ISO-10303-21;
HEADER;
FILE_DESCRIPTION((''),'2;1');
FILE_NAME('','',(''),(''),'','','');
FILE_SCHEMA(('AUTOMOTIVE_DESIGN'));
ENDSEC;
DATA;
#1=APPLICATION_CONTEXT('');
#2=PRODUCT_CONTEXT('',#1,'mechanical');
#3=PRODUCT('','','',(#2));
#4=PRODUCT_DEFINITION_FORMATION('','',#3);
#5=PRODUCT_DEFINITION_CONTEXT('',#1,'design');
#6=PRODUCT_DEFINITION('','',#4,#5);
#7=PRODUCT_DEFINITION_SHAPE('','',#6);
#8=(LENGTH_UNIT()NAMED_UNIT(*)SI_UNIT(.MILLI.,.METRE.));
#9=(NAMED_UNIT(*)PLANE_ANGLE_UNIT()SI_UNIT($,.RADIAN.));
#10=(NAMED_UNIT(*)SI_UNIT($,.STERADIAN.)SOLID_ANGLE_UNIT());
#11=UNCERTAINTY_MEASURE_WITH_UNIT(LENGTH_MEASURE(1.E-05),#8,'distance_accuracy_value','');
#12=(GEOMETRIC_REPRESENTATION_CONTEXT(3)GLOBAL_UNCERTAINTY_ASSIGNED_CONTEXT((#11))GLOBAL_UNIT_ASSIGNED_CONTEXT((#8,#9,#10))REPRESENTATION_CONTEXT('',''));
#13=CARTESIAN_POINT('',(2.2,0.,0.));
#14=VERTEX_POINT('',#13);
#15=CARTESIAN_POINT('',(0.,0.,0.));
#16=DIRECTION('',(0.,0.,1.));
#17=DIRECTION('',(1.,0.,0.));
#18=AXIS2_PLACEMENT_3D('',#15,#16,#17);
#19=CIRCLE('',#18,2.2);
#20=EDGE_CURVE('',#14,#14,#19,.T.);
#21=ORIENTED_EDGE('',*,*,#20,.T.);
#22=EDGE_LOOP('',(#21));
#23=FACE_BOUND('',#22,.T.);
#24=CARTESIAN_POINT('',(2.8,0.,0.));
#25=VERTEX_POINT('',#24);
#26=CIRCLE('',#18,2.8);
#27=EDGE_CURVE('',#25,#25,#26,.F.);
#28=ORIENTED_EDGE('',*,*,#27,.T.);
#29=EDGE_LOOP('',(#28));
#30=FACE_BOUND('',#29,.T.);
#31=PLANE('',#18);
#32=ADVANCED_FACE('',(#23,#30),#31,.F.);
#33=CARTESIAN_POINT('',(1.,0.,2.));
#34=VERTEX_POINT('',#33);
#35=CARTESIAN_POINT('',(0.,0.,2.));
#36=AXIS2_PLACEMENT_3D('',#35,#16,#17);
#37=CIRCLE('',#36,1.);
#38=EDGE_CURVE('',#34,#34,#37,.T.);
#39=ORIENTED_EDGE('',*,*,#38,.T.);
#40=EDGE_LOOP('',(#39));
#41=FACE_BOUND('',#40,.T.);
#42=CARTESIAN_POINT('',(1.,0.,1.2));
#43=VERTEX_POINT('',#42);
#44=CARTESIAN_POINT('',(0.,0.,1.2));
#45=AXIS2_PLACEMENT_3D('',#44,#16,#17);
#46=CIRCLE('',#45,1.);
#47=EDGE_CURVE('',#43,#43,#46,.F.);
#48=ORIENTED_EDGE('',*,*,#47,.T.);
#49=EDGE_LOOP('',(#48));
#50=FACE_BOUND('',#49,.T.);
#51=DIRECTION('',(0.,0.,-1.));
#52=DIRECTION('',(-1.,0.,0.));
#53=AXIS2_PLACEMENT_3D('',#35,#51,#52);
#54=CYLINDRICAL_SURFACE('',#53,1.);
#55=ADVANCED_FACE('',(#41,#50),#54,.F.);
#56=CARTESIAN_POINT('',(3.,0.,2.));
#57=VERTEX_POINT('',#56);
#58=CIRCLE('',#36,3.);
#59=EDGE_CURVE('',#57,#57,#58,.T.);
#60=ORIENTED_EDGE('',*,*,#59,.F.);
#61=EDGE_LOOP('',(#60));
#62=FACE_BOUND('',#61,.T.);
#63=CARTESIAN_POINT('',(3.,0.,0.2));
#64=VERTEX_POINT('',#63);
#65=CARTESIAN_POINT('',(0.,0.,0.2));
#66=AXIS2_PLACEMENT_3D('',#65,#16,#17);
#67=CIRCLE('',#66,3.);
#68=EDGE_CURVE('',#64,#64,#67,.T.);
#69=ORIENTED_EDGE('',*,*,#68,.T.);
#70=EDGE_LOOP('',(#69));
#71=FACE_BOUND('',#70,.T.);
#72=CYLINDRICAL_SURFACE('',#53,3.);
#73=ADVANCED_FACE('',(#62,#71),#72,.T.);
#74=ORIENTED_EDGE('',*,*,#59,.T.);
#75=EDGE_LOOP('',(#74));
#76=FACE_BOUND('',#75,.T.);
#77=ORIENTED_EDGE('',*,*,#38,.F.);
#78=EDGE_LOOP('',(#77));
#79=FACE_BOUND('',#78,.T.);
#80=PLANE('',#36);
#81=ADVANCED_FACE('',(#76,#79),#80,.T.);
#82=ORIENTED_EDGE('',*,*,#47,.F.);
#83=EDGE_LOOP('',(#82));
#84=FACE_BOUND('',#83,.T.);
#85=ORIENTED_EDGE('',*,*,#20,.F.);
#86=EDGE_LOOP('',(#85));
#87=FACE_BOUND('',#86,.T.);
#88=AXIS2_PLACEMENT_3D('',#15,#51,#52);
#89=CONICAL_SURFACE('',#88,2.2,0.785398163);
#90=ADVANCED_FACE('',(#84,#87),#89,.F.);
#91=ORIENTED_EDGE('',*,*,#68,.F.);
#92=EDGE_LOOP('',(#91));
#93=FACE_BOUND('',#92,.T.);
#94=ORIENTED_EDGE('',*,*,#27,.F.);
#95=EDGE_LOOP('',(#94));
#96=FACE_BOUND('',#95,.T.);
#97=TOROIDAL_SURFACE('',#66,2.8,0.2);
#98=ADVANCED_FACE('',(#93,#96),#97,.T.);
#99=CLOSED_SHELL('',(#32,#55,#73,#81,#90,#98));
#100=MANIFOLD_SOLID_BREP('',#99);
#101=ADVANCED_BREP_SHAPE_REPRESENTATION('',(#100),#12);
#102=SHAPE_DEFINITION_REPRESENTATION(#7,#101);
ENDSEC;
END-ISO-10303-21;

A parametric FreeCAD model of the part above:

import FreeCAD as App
import Part
import Sketcher
Q = App.Units.Quantity


def edges_at(feature, points):
    """Names of the edges that pass closest to the given points."""
    edges = feature.Shape.Edges
    near = lambda p: min(range(len(edges)), key=lambda i: edges[i].distToShape(Part.Vertex(*p))[0])
    return sorted({f"Edge{near(p) + 1}" for p in points})

doc = App.newDocument("Part")
body = doc.addObject("PartDesign::Body", "Body")

# Sketch on XY plane
sketch1 = body.newObject("Sketcher::SketchObject", "Sketch")
sketch1.AttachmentSupport = (doc.getObject("XY_Plane"), [""])
sketch1.MapMode = "FlatFace"
sketch1.addGeometry(Part.Circle(App.Vector(0, 0, 0), App.Vector(0, 0, 1), 3), False)
sketch1.addGeometry(Part.Circle(App.Vector(0, 0, 0), App.Vector(0, 0, 1), 1), False)
sketch1.addConstraint(Sketcher.Constraint("Coincident", 0, 3, -1, 1))
sketch1.addConstraint(Sketcher.Constraint("Coincident", 1, 3, -1, 1))
sketch1.addConstraint(Sketcher.Constraint("Diameter", 0, Q("6 mm")))
sketch1.addConstraint(Sketcher.Constraint("Diameter", 1, Q("2 mm")))
pad1 = body.newObject("PartDesign::Pad", "Pad")
pad1.Profile = sketch1
pad1.Length = 2
doc.recompute()

chamfer = body.newObject("PartDesign::Chamfer", "Chamfer")
chamfer.Base = (pad1, edges_at(pad1, [(-1, 0, 0)]))
chamfer.Size = 1.2
doc.recompute()

fillet = body.newObject("PartDesign::Fillet", "Fillet")
fillet.Base = (chamfer, edges_at(chamfer, [(-3, 0, 0)]))
fillet.Radius = 0.2

doc.recompute()
